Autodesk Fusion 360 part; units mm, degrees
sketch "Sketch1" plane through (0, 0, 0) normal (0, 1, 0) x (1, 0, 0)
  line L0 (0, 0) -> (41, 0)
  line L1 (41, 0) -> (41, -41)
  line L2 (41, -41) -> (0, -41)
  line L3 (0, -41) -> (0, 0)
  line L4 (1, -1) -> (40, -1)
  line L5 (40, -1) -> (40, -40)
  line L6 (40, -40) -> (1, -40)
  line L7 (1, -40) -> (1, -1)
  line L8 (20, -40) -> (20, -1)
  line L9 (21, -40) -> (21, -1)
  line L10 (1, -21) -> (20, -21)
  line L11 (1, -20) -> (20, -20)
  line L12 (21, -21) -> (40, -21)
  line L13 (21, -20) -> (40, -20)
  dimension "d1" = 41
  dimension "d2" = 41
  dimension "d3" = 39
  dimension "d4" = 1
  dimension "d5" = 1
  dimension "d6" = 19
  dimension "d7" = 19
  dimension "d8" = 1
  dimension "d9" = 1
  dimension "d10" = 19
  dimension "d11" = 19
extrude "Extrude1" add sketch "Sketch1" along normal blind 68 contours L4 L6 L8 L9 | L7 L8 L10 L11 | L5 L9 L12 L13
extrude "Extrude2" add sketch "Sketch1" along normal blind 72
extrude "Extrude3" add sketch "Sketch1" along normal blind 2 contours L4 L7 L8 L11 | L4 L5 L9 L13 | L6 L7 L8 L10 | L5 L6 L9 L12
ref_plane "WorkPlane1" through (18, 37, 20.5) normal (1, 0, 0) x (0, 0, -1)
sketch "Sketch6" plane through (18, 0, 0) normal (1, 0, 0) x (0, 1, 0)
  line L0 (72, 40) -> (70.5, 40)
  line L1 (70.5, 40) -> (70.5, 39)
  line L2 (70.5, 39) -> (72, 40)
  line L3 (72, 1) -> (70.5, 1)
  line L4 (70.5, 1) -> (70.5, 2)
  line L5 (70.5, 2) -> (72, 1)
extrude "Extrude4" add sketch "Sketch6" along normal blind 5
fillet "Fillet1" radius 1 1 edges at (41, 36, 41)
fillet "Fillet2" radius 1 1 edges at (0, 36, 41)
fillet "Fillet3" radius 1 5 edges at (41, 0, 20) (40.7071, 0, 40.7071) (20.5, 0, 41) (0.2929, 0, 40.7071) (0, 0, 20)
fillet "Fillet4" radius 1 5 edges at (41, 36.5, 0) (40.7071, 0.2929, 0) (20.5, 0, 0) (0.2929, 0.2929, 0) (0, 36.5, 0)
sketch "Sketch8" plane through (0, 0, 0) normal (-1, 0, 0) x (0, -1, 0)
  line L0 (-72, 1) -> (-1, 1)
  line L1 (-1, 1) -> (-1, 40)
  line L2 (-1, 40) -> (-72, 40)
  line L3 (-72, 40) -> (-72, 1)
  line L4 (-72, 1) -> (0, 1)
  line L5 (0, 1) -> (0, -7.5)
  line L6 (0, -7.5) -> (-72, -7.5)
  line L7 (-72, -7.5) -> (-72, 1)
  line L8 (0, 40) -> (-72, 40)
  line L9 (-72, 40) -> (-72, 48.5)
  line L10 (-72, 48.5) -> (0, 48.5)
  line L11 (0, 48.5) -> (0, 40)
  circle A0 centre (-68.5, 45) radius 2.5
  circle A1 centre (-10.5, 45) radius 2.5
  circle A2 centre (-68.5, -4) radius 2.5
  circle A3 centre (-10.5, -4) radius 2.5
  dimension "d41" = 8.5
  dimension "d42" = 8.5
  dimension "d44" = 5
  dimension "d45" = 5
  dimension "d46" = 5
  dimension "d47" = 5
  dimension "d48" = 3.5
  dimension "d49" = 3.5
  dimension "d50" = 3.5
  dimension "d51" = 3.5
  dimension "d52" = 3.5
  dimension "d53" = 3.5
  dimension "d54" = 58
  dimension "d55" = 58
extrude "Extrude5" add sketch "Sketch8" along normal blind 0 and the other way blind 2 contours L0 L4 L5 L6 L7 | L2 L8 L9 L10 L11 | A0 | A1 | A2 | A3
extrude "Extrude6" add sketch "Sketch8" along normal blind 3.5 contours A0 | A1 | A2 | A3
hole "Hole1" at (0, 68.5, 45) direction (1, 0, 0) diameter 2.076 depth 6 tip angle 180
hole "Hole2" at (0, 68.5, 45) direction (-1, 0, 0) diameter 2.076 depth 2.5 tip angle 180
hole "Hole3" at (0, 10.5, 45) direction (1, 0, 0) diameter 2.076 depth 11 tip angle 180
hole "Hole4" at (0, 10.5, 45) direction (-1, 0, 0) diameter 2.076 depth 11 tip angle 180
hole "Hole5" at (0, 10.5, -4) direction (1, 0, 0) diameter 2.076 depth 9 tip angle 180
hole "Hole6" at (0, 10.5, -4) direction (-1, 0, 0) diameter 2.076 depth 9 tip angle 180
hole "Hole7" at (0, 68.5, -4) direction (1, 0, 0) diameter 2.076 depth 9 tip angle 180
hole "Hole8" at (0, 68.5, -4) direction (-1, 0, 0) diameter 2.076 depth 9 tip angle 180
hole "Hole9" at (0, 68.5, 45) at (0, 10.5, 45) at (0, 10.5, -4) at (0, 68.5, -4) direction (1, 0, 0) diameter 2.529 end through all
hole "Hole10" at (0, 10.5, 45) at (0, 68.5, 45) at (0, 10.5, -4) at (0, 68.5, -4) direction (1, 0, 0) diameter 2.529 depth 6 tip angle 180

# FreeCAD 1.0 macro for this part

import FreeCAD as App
import Part
import Sketcher

V = App.Vector
Q = App.Units.Quantity


def edges_at(feature, points):
    """Names of the edges that pass closest to the given points."""
    edges = feature.Shape.Edges
    near = lambda p: min(range(len(edges)), key=lambda i: edges[i].distToShape(Part.Vertex(*p))[0])
    return sorted({f"Edge{near(p) + 1}" for p in points})

doc = App.newDocument("Part")
body = doc.addObject("PartDesign::Body", "Body")

sketch1 = body.newObject("Sketcher::SketchObject", "Sketch")
sketch1.AttachmentSupport = (doc.getObject("XZ_Plane"), [""])
sketch1.MapMode = "FlatFace"
sketch1.addGeometry([
    Part.LineSegment(V(21, 1, 0), V(20, 1, 0)),
    Part.LineSegment(V(20, 1, 0), V(20, 20, 0)),
    Part.LineSegment(V(20, 20, 0), V(1, 20, 0)),
    Part.LineSegment(V(1, 20, 0), V(1, 21, 0)),
    Part.LineSegment(V(1, 21, 0), V(20, 21, 0)),
    Part.LineSegment(V(20, 21, 0), V(20, 40, 0)),
    Part.LineSegment(V(20, 40, 0), V(21, 40, 0)),
    Part.LineSegment(V(21, 40, 0), V(21, 21, 0)),
    Part.LineSegment(V(21, 21, 0), V(40, 21, 0)),
    Part.LineSegment(V(40, 21, 0), V(40, 20, 0)),
    Part.LineSegment(V(40, 20, 0), V(21, 20, 0)),
    Part.LineSegment(V(21, 20, 0), V(21, 1, 0)),
], False)
sketch1.addConstraint([
    Sketcher.Constraint("Coincident", 0, 2, 1, 1),
    Sketcher.Constraint("Coincident", 1, 2, 2, 1),
    Sketcher.Constraint("Coincident", 2, 2, 3, 1),
    Sketcher.Constraint("Coincident", 3, 2, 4, 1),
    Sketcher.Constraint("Coincident", 4, 2, 5, 1),
    Sketcher.Constraint("Coincident", 5, 2, 6, 1),
    Sketcher.Constraint("Coincident", 6, 2, 7, 1),
    Sketcher.Constraint("Coincident", 7, 2, 8, 1),
    Sketcher.Constraint("Coincident", 8, 2, 9, 1),
    Sketcher.Constraint("Coincident", 9, 2, 10, 1),
    Sketcher.Constraint("Coincident", 10, 2, 11, 1),
    Sketcher.Constraint("Coincident", 11, 2, 0, 1),
    Sketcher.Constraint("Horizontal", 0),
    Sketcher.Constraint("Vertical", 1),
    Sketcher.Constraint("Horizontal", 2),
    Sketcher.Constraint("Vertical", 3),
    Sketcher.Constraint("Horizontal", 4),
    Sketcher.Constraint("Vertical", 5),
    Sketcher.Constraint("Horizontal", 6),
    Sketcher.Constraint("Vertical", 7),
    Sketcher.Constraint("Horizontal", 8),
    Sketcher.Constraint("Vertical", 9),
    Sketcher.Constraint("Horizontal", 10),
    Sketcher.Constraint("Vertical", 11),
    Sketcher.Constraint("Horizontal", 4, 2, 7, 2),
    Sketcher.Constraint("Horizontal", 2, 2, 9, 2),
    Sketcher.Constraint("Vertical", 1, 2, 4, 2),
    Sketcher.Constraint("Vertical", 7, 2, 10, 2),
    Sketcher.Constraint("Equal", 4, 8),
    Sketcher.Constraint("Equal", 10, 1),
    Sketcher.Constraint("Equal", 6, 3),
    Sketcher.Constraint("Equal", 1, 5),
    Sketcher.Constraint("DistanceX", 0, 2, 0, 1, Q("1 mm")),
    Sketcher.Constraint("DistanceX", 2, 2, 2, 1, Q("19 mm")),
    Sketcher.Constraint("DistanceY", -1, 1, 0, 2, Q("1 mm")),
    Sketcher.Constraint("DistanceX", -1, 1, 2, 2, Q("1 mm")),
])
pad1 = body.newObject("PartDesign::Pad", "Pad")
pad1.Profile = sketch1
pad1.Length = 68
pad1.Reversed = True

sketch2 = body.newObject("Sketcher::SketchObject", "Sketch001")
sketch2.AttachmentSupport = (doc.getObject("XZ_Plane"), [""])
sketch2.MapMode = "FlatFace"
sketch2.addGeometry([
    Part.LineSegment(V(41, 0, 0), V(0, 0, 0)),
    Part.LineSegment(V(0, 0, 0), V(0, 41, 0)),
    Part.LineSegment(V(0, 41, 0), V(41, 41, 0)),
    Part.LineSegment(V(41, 41, 0), V(41, 0, 0)),
    Part.LineSegment(V(1, 40, 0), V(1, 1, 0)),
    Part.LineSegment(V(1, 1, 0), V(40, 1, 0)),
    Part.LineSegment(V(40, 1, 0), V(40, 40, 0)),
    Part.LineSegment(V(40, 40, 0), V(1, 40, 0)),
], False)
sketch2.addConstraint([
    Sketcher.Constraint("Coincident", 0, 2, 1, 1),
    Sketcher.Constraint("Coincident", 1, 2, 2, 1),
    Sketcher.Constraint("Coincident", 2, 2, 3, 1),
    Sketcher.Constraint("Coincident", 3, 2, 0, 1),
    Sketcher.Constraint("Coincident", 4, 2, 5, 1),
    Sketcher.Constraint("Coincident", 5, 2, 6, 1),
    Sketcher.Constraint("Coincident", 6, 2, 7, 1),
    Sketcher.Constraint("Coincident", 7, 2, 4, 1),
    Sketcher.Constraint("Horizontal", 0),
    Sketcher.Constraint("Vertical", 1),
    Sketcher.Constraint("Horizontal", 2),
    Sketcher.Constraint("Vertical", 3),
    Sketcher.Constraint("Vertical", 4),
    Sketcher.Constraint("Horizontal", 5),
    Sketcher.Constraint("Vertical", 6),
    Sketcher.Constraint("Horizontal", 7),
    Sketcher.Constraint("Coincident", 0, 2, -1, 1),
    Sketcher.Constraint("Equal", 2, 1),
    Sketcher.Constraint("Equal", 7, 4),
    Sketcher.Constraint("DistanceX", 0, 2, 0, 1, Q("41 mm")),
    Sketcher.Constraint("DistanceX", 5, 1, 5, 2, Q("39 mm")),
    Sketcher.Constraint("DistanceX", -1, 1, 4, 2, Q("1 mm")),
    Sketcher.Constraint("DistanceY", -1, 1, 4, 2, Q("1 mm")),
])
pad2 = body.newObject("PartDesign::Pad", "Pad001")
pad2.Profile = sketch2
pad2.Length = 72
pad2.Reversed = True

sketch3 = body.newObject("Sketcher::SketchObject", "Sketch002")
sketch3.AttachmentSupport = (doc.getObject("XZ_Plane"), [""])
sketch3.MapMode = "FlatFace"
sketch3.addGeometry([
    Part.LineSegment(V(20, 1, 0), V(1, 1, 0)),
    Part.LineSegment(V(1, 1, 0), V(1, 20, 0)),
    Part.LineSegment(V(1, 20, 0), V(20, 20, 0)),
    Part.LineSegment(V(20, 20, 0), V(20, 1, 0)),
    Part.LineSegment(V(40, 1, 0), V(21, 1, 0)),
    Part.LineSegment(V(21, 1, 0), V(21, 20, 0)),
    Part.LineSegment(V(21, 20, 0), V(40, 20, 0)),
    Part.LineSegment(V(40, 20, 0), V(40, 1, 0)),
    Part.LineSegment(V(20, 21, 0), V(1, 21, 0)),
    Part.LineSegment(V(1, 21, 0), V(1, 40, 0)),
    Part.LineSegment(V(1, 40, 0), V(20, 40, 0)),
    Part.LineSegment(V(20, 40, 0), V(20, 21, 0)),
    Part.LineSegment(V(40, 21, 0), V(21, 21, 0)),
    Part.LineSegment(V(21, 21, 0), V(21, 40, 0)),
    Part.LineSegment(V(21, 40, 0), V(40, 40, 0)),
    Part.LineSegment(V(40, 40, 0), V(40, 21, 0)),
], False)
sketch3.addConstraint([
    Sketcher.Constraint("Coincident", 0, 2, 1, 1),
    Sketcher.Constraint("Coincident", 1, 2, 2, 1),
    Sketcher.Constraint("Coincident", 2, 2, 3, 1),
    Sketcher.Constraint("Coincident", 3, 2, 0, 1),
    Sketcher.Constraint("Coincident", 4, 2, 5, 1),
    Sketcher.Constraint("Coincident", 5, 2, 6, 1),
    Sketcher.Constraint("Coincident", 6, 2, 7, 1),
    Sketcher.Constraint("Coincident", 7, 2, 4, 1),
    Sketcher.Constraint("Coincident", 8, 2, 9, 1),
    Sketcher.Constraint("Coincident", 9, 2, 10, 1),
    Sketcher.Constraint("Coincident", 10, 2, 11, 1),
    Sketcher.Constraint("Coincident", 11, 2, 8, 1),
    Sketcher.Constraint("Coincident", 12, 2, 13, 1),
    Sketcher.Constraint("Coincident", 13, 2, 14, 1),
    Sketcher.Constraint("Coincident", 14, 2, 15, 1),
    Sketcher.Constraint("Coincident", 15, 2, 12, 1),
    Sketcher.Constraint("Horizontal", 0),
    Sketcher.Constraint("Vertical", 1),
    Sketcher.Constraint("Horizontal", 2),
    Sketcher.Constraint("Vertical", 3),
    Sketcher.Constraint("Horizontal", 4),
    Sketcher.Constraint("Vertical", 5),
    Sketcher.Constraint("Horizontal", 6),
    Sketcher.Constraint("Vertical", 7),
    Sketcher.Constraint("Horizontal", 8),
    Sketcher.Constraint("Vertical", 9),
    Sketcher.Constraint("Horizontal", 10),
    Sketcher.Constraint("Vertical", 11),
    Sketcher.Constraint("Horizontal", 12),
    Sketcher.Constraint("Vertical", 13),
    Sketcher.Constraint("Horizontal", 14),
    Sketcher.Constraint("Vertical", 15),
    Sketcher.Constraint("Horizontal", 3, 2, 4, 2),
    Sketcher.Constraint("Horizontal", 2, 2, 5, 2),
    Sketcher.Constraint("Horizontal", 11, 2, 12, 2),
    Sketcher.Constraint("Horizontal", 10, 2, 13, 2),
    Sketcher.Constraint("Vertical", 1, 2, 8, 2),
    Sketcher.Constraint("Vertical", 3, 2, 10, 2),
    Sketcher.Constraint("Vertical", 5, 2, 12, 2),
    Sketcher.Constraint("Vertical", 7, 2, 14, 2),
    Sketcher.Constraint("Equal", 2, 4),
    Sketcher.Constraint("Equal", 14, 1),
    Sketcher.Constraint("Equal", 7, 9),
    Sketcher.Constraint("DistanceX", 0, 2, 0, 1, Q("19 mm")),
    Sketcher.Constraint("DistanceX", -1, 1, 0, 2, Q("1 mm")),
    Sketcher.Constraint("DistanceY", -1, 1, 0, 2, Q("1 mm")),
    Sketcher.Constraint("DistanceX", 3, 2, 4, 2, Q("1 mm")),
    Sketcher.Constraint("DistanceY", 1, 2, 8, 2, Q("1 mm")),
])
pad3 = body.newObject("PartDesign::Pad", "Pad002")
pad3.Profile = sketch3
pad3.Length = 2
pad3.Reversed = True

sketch4 = body.newObject("Sketcher::SketchObject", "Sketch003")
sketch4.AttachmentSupport = (doc.getObject("YZ_Plane"), [""])
sketch4.MapMode = "FlatFace"
sketch4.AttachmentOffset = App.Placement(V(0, 0, 18), App.Rotation())
sketch4.addGeometry([
    Part.LineSegment(V(70.5, 39, 0), V(72, 40, 0)),
    Part.LineSegment(V(72, 40, 0), V(70.5, 40, 0)),
    Part.LineSegment(V(70.5, 40, 0), V(70.5, 39, 0)),
    Part.LineSegment(V(70.5, 1, 0), V(72, 1, 0)),
    Part.LineSegment(V(72, 1, 0), V(70.5, 2, 0)),
    Part.LineSegment(V(70.5, 2, 0), V(70.5, 1, 0)),
], False)
sketch4.addConstraint([
    Sketcher.Constraint("Coincident", 0, 2, 1, 1),
    Sketcher.Constraint("Coincident", 1, 2, 2, 1),
    Sketcher.Constraint("Coincident", 2, 2, 0, 1),
    Sketcher.Constraint("Coincident", 3, 2, 4, 1),
    Sketcher.Constraint("Coincident", 4, 2, 5, 1),
    Sketcher.Constraint("Coincident", 5, 2, 3, 1),
    Sketcher.Constraint("Horizontal", 1),
    Sketcher.Constraint("Vertical", 2),
    Sketcher.Constraint("Horizontal", 3),
    Sketcher.Constraint("Vertical", 5),
    Sketcher.Constraint("Vertical", 0, 2, 3, 2),
    Sketcher.Constraint("Vertical", 2, 2, 4, 2),
    Sketcher.Constraint("Equal", 2, 5),
    Sketcher.Constraint("DistanceY", 2, 2, 2, 1, Q("1 mm")),
    Sketcher.Constraint("DistanceX", 1, 2, 1, 1, Q("1.5 mm")),
    Sketcher.Constraint("DistanceX", -1, 1, 0, 2, Q("72 mm")),
    Sketcher.Constraint("DistanceY", -1, 1, 0, 2, Q("40 mm")),
    Sketcher.Constraint("DistanceY", -1, 1, 3, 2, Q("1 mm")),
])
pad4 = body.newObject("PartDesign::Pad", "Pad003")
pad4.Profile = sketch4
pad4.Length = 5
doc.recompute()

fillet = body.newObject("PartDesign::Fillet", "Fillet")
fillet.Base = (pad4, edges_at(pad4, [(41, 36, 41)]))
fillet.Radius = 1
doc.recompute()

fillet2 = body.newObject("PartDesign::Fillet", "Fillet001")
fillet2.Base = (fillet, edges_at(fillet, [(0, 36, 41)]))
fillet2.Radius = 1
doc.recompute()

fillet3 = body.newObject("PartDesign::Fillet", "Fillet002")
fillet3.Base = (fillet2, edges_at(fillet2, [
    (41, 0, 20),
    (40.707, 0, 40.707),
    (20.5, 0, 41),
    (0.293, 0, 40.707),
    (0, 0, 20),
]))
fillet3.Radius = 1
doc.recompute()

fillet4 = body.newObject("PartDesign::Fillet", "Fillet003")
fillet4.Base = (fillet3, edges_at(fillet3, [
    (41, 36.5, 0),
    (40.707, 0.293, 0),
    (20.5, 0, 0),
    (0.293, 0.293, 0),
    (0, 36.5, 0),
]))
fillet4.Radius = 1

sketch5 = body.newObject("Sketcher::SketchObject", "Sketch004")
sketch5.AttachmentSupport = (doc.getObject("YZ_Plane"), [""])
sketch5.MapMode = "FlatFace"
sketch5.addGeometry([
    Part.LineSegment(V(72, 1, 0), V(72, -7.5, 0)),
    Part.LineSegment(V(72, -7.5, 0), V(0, -7.5, 0)),
    Part.LineSegment(V(0, -7.5, 0), V(0, 1, 0)),
    Part.LineSegment(V(0, 1, 0), V(72, 1, 0)),
    Part.LineSegment(V(72, 48.5, 0), V(72, 40, 0)),
    Part.LineSegment(V(72, 40, 0), V(0, 40, 0)),
    Part.LineSegment(V(0, 40, 0), V(0, 48.5, 0)),
    Part.LineSegment(V(0, 48.5, 0), V(72, 48.5, 0)),
], False)
sketch5.addConstraint([
    Sketcher.Constraint("Coincident", 0, 2, 1, 1),
    Sketcher.Constraint("Coincident", 1, 2, 2, 1),
    Sketcher.Constraint("Coincident", 2, 2, 3, 1),
    Sketcher.Constraint("Coincident", 3, 2, 0, 1),
    Sketcher.Constraint("Coincident", 4, 2, 5, 1),
    Sketcher.Constraint("Coincident", 5, 2, 6, 1),
    Sketcher.Constraint("Coincident", 6, 2, 7, 1),
    Sketcher.Constraint("Coincident", 7, 2, 4, 1),
    Sketcher.Constraint("Vertical", 0),
    Sketcher.Constraint("Horizontal", 1),
    Sketcher.Constraint("Vertical", 2),
    Sketcher.Constraint("Horizontal", 3),
    Sketcher.Constraint("Vertical", 4),
    Sketcher.Constraint("Horizontal", 5),
    Sketcher.Constraint("Vertical", 6),
    Sketcher.Constraint("Horizontal", 7),
    Sketcher.Constraint("PointOnObject", 1, 2, -2),
    Sketcher.Constraint("PointOnObject", 5, 2, -2),
    Sketcher.Constraint("Vertical", 3, 2, 4, 2),
    Sketcher.Constraint("Equal", 2, 4),
    Sketcher.Constraint("DistanceY", 0, 2, 0, 1, Q("8.5 mm")),
    Sketcher.Constraint("DistanceX", 1, 2, 1, 1, Q("72 mm")),
    Sketcher.Constraint("DistanceY", -1, 1, 2, 2, Q("1 mm")),
    Sketcher.Constraint("DistanceY", -1, 1, 4, 2, Q("40 mm")),
])
pad5 = body.newObject("PartDesign::Pad", "Pad004")
pad5.Profile = sketch5
pad5.Type = "TwoLengths"
pad5.Length = 0
pad5.Length2 = 2
pad5.Reversed = True

sketch6 = body.newObject("Sketcher::SketchObject", "Sketch005")
sketch6.AttachmentSupport = (doc.getObject("YZ_Plane"), [""])
sketch6.MapMode = "FlatFace"
sketch6.addGeometry([
    Part.Circle(V(68.5, 45, 0), V(0, 0, 1), 2.5),
    Part.Circle(V(10.5, 45, 0), V(0, 0, 1), 2.5),
    Part.Circle(V(68.5, -4, 0), V(0, 0, 1), 2.5),
    Part.Circle(V(10.5, -4, 0), V(0, 0, 1), 2.5),
], False)
sketch6.addConstraint([
    Sketcher.Constraint("Equal", 0, 1),
    Sketcher.Constraint("Equal", 1, 2),
    Sketcher.Constraint("Equal", 2, 3),
    Sketcher.Constraint("Horizontal", 0, 3, 1, 3),
    Sketcher.Constraint("Horizontal", 2, 3, 3, 3),
    Sketcher.Constraint("Vertical", 0, 3, 2, 3),
    Sketcher.Constraint("Vertical", 1, 3, 3, 3),
    Sketcher.Constraint("Diameter", 0, Q("5 mm")),
    Sketcher.Constraint("DistanceX", 1, 3, 0, 3, Q("58 mm")),
    Sketcher.Constraint("DistanceY", -1, 1, 0, 3, Q("45 mm")),
    Sketcher.Constraint("DistanceY", 2, 3, -1, 1, Q("4 mm")),
    Sketcher.Constraint("DistanceX", -1, 1, 0, 3, Q("68.5 mm")),
])
pad6 = body.newObject("PartDesign::Pad", "Pad005")
pad6.Profile = sketch6
pad6.Length = 3.5
pad6.Reversed = True

sketch7 = body.newObject("Sketcher::SketchObject", "Sketch006")
sketch7.AttachmentSupport = (doc.getObject("YZ_Plane"), [""])
sketch7.MapMode = "FlatFace"
sketch7.addGeometry(Part.Circle(V(68.5, 45, 0), V(0, 0, 1), 1.038), False)
sketch7.addConstraint([
    Sketcher.Constraint("Diameter", 0, Q("2.076 mm")),
    Sketcher.Constraint("DistanceY", -1, 1, 0, 3, Q("45 mm")),
    Sketcher.Constraint("DistanceX", -1, 1, 0, 3, Q("68.5 mm")),
])
doc.recompute()
hole = body.newObject("PartDesign::Hole", "Hole")
hole.Profile = sketch7
hole.ThreadType = "None"
hole.Diameter = 2.076
hole.DepthType = "Dimension"
hole.Depth = 6
hole.DrillPoint = "Flat"
hole.Reversed = True

sketch8 = body.newObject("Sketcher::SketchObject", "Sketch007")
sketch8.AttachmentSupport = (doc.getObject("YZ_Plane"), [""])
sketch8.MapMode = "FlatFace"
sketch8.addGeometry(Part.Circle(V(68.5, 45, 0), V(0, 0, 1), 1.038), False)
sketch8.addConstraint([
    Sketcher.Constraint("Diameter", 0, Q("2.076 mm")),
    Sketcher.Constraint("DistanceY", -1, 1, 0, 3, Q("45 mm")),
    Sketcher.Constraint("DistanceX", -1, 1, 0, 3, Q("68.5 mm")),
])
doc.recompute()
hole2 = body.newObject("PartDesign::Hole", "Hole001")
hole2.Profile = sketch8
hole2.ThreadType = "None"
hole2.Diameter = 2.076
hole2.DepthType = "Dimension"
hole2.Depth = 2.5
hole2.DrillPoint = "Flat"

sketch9 = body.newObject("Sketcher::SketchObject", "Sketch008")
sketch9.AttachmentSupport = (doc.getObject("YZ_Plane"), [""])
sketch9.MapMode = "FlatFace"
sketch9.addGeometry(Part.Circle(V(10.5, 45, 0), V(0, 0, 1), 1.038), False)
sketch9.addConstraint([
    Sketcher.Constraint("Diameter", 0, Q("2.076 mm")),
    Sketcher.Constraint("DistanceY", -1, 1, 0, 3, Q("45 mm")),
    Sketcher.Constraint("DistanceX", -1, 1, 0, 3, Q("10.5 mm")),
])
doc.recompute()
hole3 = body.newObject("PartDesign::Hole", "Hole002")
hole3.Profile = sketch9
hole3.ThreadType = "None"
hole3.Diameter = 2.076
hole3.DepthType = "Dimension"
hole3.Depth = 11
hole3.DrillPoint = "Flat"
hole3.Reversed = True

sketch10 = body.newObject("Sketcher::SketchObject", "Sketch009")
sketch10.AttachmentSupport = (doc.getObject("YZ_Plane"), [""])
sketch10.MapMode = "FlatFace"
sketch10.addGeometry(Part.Circle(V(10.5, 45, 0), V(0, 0, 1), 1.038), False)
sketch10.addConstraint([
    Sketcher.Constraint("Diameter", 0, Q("2.076 mm")),
    Sketcher.Constraint("DistanceY", -1, 1, 0, 3, Q("45 mm")),
    Sketcher.Constraint("DistanceX", -1, 1, 0, 3, Q("10.5 mm")),
])
doc.recompute()
hole4 = body.newObject("PartDesign::Hole", "Hole003")
hole4.Profile = sketch10
hole4.ThreadType = "None"
hole4.Diameter = 2.076
hole4.DepthType = "Dimension"
hole4.Depth = 11
hole4.DrillPoint = "Flat"

sketch11 = body.newObject("Sketcher::SketchObject", "Sketch010")
sketch11.AttachmentSupport = (doc.getObject("YZ_Plane"), [""])
sketch11.MapMode = "FlatFace"
sketch11.addGeometry(Part.Circle(V(10.5, -4, 0), V(0, 0, 1), 1.038), False)
sketch11.addConstraint([
    Sketcher.Constraint("Diameter", 0, Q("2.076 mm")),
    Sketcher.Constraint("DistanceY", 0, 3, -1, 1, Q("4 mm")),
    Sketcher.Constraint("DistanceX", -1, 1, 0, 3, Q("10.5 mm")),
])
doc.recompute()
hole5 = body.newObject("PartDesign::Hole", "Hole004")
hole5.Profile = sketch11
hole5.ThreadType = "None"
hole5.Diameter = 2.076
hole5.DepthType = "Dimension"
hole5.Depth = 9
hole5.DrillPoint = "Flat"
hole5.Reversed = True

sketch12 = body.newObject("Sketcher::SketchObject", "Sketch011")
sketch12.AttachmentSupport = (doc.getObject("YZ_Plane"), [""])
sketch12.MapMode = "FlatFace"
sketch12.addGeometry(Part.Circle(V(10.5, -4, 0), V(0, 0, 1), 1.038), False)
sketch12.addConstraint([
    Sketcher.Constraint("Diameter", 0, Q("2.076 mm")),
    Sketcher.Constraint("DistanceY", 0, 3, -1, 1, Q("4 mm")),
    Sketcher.Constraint("DistanceX", -1, 1, 0, 3, Q("10.5 mm")),
])
doc.recompute()
hole6 = body.newObject("PartDesign::Hole", "Hole005")
hole6.Profile = sketch12
hole6.ThreadType = "None"
hole6.Diameter = 2.076
hole6.DepthType = "Dimension"
hole6.Depth = 9
hole6.DrillPoint = "Flat"

sketch13 = body.newObject("Sketcher::SketchObject", "Sketch012")
sketch13.AttachmentSupport = (doc.getObject("YZ_Plane"), [""])
sketch13.MapMode = "FlatFace"
sketch13.addGeometry(Part.Circle(V(68.5, -4, 0), V(0, 0, 1), 1.038), False)
sketch13.addConstraint([
    Sketcher.Constraint("Diameter", 0, Q("2.076 mm")),
    Sketcher.Constraint("DistanceY", 0, 3, -1, 1, Q("4 mm")),
    Sketcher.Constraint("DistanceX", -1, 1, 0, 3, Q("68.5 mm")),
])
doc.recompute()
hole7 = body.newObject("PartDesign::Hole", "Hole006")
hole7.Profile = sketch13
hole7.ThreadType = "None"
hole7.Diameter = 2.076
hole7.DepthType = "Dimension"
hole7.Depth = 9
hole7.DrillPoint = "Flat"
hole7.Reversed = True

sketch14 = body.newObject("Sketcher::SketchObject", "Sketch013")
sketch14.AttachmentSupport = (doc.getObject("YZ_Plane"), [""])
sketch14.MapMode = "FlatFace"
sketch14.addGeometry(Part.Circle(V(68.5, -4, 0), V(0, 0, 1), 1.038), False)
sketch14.addConstraint([
    Sketcher.Constraint("Diameter", 0, Q("2.076 mm")),
    Sketcher.Constraint("DistanceY", 0, 3, -1, 1, Q("4 mm")),
    Sketcher.Constraint("DistanceX", -1, 1, 0, 3, Q("68.5 mm")),
])
doc.recompute()
hole8 = body.newObject("PartDesign::Hole", "Hole007")
hole8.Profile = sketch14
hole8.ThreadType = "None"
hole8.Diameter = 2.076
hole8.DepthType = "Dimension"
hole8.Depth = 9
hole8.DrillPoint = "Flat"

sketch15 = body.newObject("Sketcher::SketchObject", "Sketch014")
sketch15.AttachmentSupport = (doc.getObject("YZ_Plane"), [""])
sketch15.MapMode = "FlatFace"
sketch15.addGeometry([
    Part.Circle(V(68.5, 45, 0), V(0, 0, 1), 1.2645),
    Part.Circle(V(10.5, 45, 0), V(0, 0, 1), 1.2645),
    Part.Circle(V(10.5, -4, 0), V(0, 0, 1), 1.2645),
    Part.Circle(V(68.5, -4, 0), V(0, 0, 1), 1.2645),
], False)
sketch15.addConstraint([
    Sketcher.Constraint("Equal", 0, 1),
    Sketcher.Constraint("Equal", 1, 2),
    Sketcher.Constraint("Equal", 2, 3),
    Sketcher.Constraint("Horizontal", 0, 3, 1, 3),
    Sketcher.Constraint("Horizontal", 2, 3, 3, 3),
    Sketcher.Constraint("Vertical", 1, 3, 2, 3),
    Sketcher.Constraint("Vertical", 0, 3, 3, 3),
    Sketcher.Constraint("Diameter", 0, Q("2.529 mm")),
    Sketcher.Constraint("DistanceY", -1, 1, 0, 3, Q("45 mm")),
    Sketcher.Constraint("DistanceY", 2, 3, -1, 1, Q("4 mm")),
    Sketcher.Constraint("DistanceX", 1, 3, 0, 3, Q("58 mm")),
    Sketcher.Constraint("DistanceX", -1, 1, 0, 3, Q("68.5 mm")),
])
doc.recompute()
hole9 = body.newObject("PartDesign::Hole", "Hole008")
hole9.Profile = sketch15
hole9.ThreadType = "None"
hole9.Diameter = 2.529
hole9.DepthType = "ThroughAll"
hole9.Reversed = True

sketch16 = body.newObject("Sketcher::SketchObject", "Sketch015")
sketch16.AttachmentSupport = (doc.getObject("YZ_Plane"), [""])
sketch16.MapMode = "FlatFace"
sketch16.addGeometry([
    Part.Circle(V(10.5, 45, 0), V(0, 0, 1), 1.2645),
    Part.Circle(V(68.5, 45, 0), V(0, 0, 1), 1.2645),
    Part.Circle(V(10.5, -4, 0), V(0, 0, 1), 1.2645),
    Part.Circle(V(68.5, -4, 0), V(0, 0, 1), 1.2645),
], False)
sketch16.addConstraint([
    Sketcher.Constraint("Equal", 0, 1),
    Sketcher.Constraint("Equal", 1, 2),
    Sketcher.Constraint("Equal", 2, 3),
    Sketcher.Constraint("Horizontal", 0, 3, 1, 3),
    Sketcher.Constraint("Horizontal", 2, 3, 3, 3),
    Sketcher.Constraint("Vertical", 0, 3, 2, 3),
    Sketcher.Constraint("Vertical", 1, 3, 3, 3),
    Sketcher.Constraint("Diameter", 0, Q("2.529 mm")),
    Sketcher.Constraint("DistanceY", -1, 1, 0, 3, Q("45 mm")),
    Sketcher.Constraint("DistanceY", 2, 3, -1, 1, Q("4 mm")),
    Sketcher.Constraint("DistanceX", 0, 3, 1, 3, Q("58 mm")),
    Sketcher.Constraint("DistanceX", -1, 1, 0, 3, Q("10.5 mm")),
])
doc.recompute()
hole10 = body.newObject("PartDesign::Hole", "Hole009")
hole10.Profile = sketch16
hole10.ThreadType = "None"
hole10.Diameter = 2.529
hole10.DepthType = "Dimension"
hole10.Depth = 6
hole10.DrillPoint = "Flat"
hole10.Reversed = True

doc.recompute()
